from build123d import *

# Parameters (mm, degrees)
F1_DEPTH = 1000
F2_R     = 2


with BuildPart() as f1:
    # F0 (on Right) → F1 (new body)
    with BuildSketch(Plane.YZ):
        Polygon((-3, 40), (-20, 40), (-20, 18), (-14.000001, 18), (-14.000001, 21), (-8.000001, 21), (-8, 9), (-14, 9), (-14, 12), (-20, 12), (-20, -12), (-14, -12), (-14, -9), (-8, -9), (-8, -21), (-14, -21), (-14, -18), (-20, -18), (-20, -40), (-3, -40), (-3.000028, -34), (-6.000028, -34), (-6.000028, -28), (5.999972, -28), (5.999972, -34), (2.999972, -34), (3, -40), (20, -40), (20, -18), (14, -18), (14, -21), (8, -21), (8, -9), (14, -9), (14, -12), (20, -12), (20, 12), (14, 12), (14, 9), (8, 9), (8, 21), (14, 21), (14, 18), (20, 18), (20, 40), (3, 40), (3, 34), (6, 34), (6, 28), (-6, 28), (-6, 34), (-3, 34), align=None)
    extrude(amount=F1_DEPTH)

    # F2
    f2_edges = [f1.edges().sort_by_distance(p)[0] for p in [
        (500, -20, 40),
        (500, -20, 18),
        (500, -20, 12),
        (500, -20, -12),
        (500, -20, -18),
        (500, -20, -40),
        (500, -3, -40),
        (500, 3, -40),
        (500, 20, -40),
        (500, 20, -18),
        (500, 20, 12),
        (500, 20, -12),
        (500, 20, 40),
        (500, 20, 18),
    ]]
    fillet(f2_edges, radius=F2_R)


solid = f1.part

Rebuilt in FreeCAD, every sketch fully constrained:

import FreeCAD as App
import Part
import Sketcher


def edges_at(feature, points):
    """Names of the edges that pass closest to the given points."""
    edges = feature.Shape.Edges
    near = lambda p: min(range(len(edges)), key=lambda i: edges[i].distToShape(Part.Vertex(*p))[0])
    return sorted({f"Edge{near(p) + 1}" for p in points})


def add_polygon(sketch, points):
    """Adds a closed chain of lines whose ends are joined by coincident constraints."""
    first, n = sketch.GeometryCount, len(points)
    for a, b in zip(points, points[1:] + points[:1]):
        sketch.addGeometry(Part.LineSegment(App.Vector(*a, 0), App.Vector(*b, 0)), False)
    for i in range(n):
        sketch.addConstraint(Sketcher.Constraint("Coincident", first + i, 2, first + (i + 1) % n, 1))

doc = App.newDocument("Part")
body = doc.addObject("PartDesign::Body", "Body")

# Sketch on YZ plane
sketch1 = body.newObject("Sketcher::SketchObject", "Sketch")
sketch1.AttachmentSupport = (doc.getObject("YZ_Plane"), [""])
sketch1.MapMode = "FlatFace"
add_polygon(sketch1, [(-3, 40), (-20, 40), (-20, 18), (-14.000001, 18), (-14.000001, 21), (-8.000001, 21), (-8, 9), (-14, 9), (-14, 12), (-20, 12), (-20, -12), (-14, -12), (-14, -9), (-8, -9), (-8, -21), (-14, -21), (-14, -18), (-20, -18), (-20, -40), (-3, -40), (-3.000028, -34), (-6.000028, -34), (-6.000028, -28), (5.999972, -28), (5.999972, -34), (2.999972, -34), (3, -40), (20, -40), (20, -18), (14, -18), (14, -21), (8, -21), (8, -9), (14, -9), (14, -12), (20, -12), (20, 12), (14, 12), (14, 9), (8, 9), (8, 21), (14, 21), (14, 18), (20, 18), (20, 40), (3, 40), (3, 34), (6, 34), (6, 28), (-6, 28), (-6, 34), (-3, 34)])  # lines 0-51
sketch1.addConstraint([
    Sketcher.Constraint("Horizontal", 0),
    Sketcher.Constraint("Vertical", 1),
    Sketcher.Constraint("Horizontal", 2),
    Sketcher.Constraint("Vertical", 3),
    Sketcher.Constraint("Horizontal", 4),
    Sketcher.Constraint("Vertical", 5),
    Sketcher.Constraint("Horizontal", 6),
    Sketcher.Constraint("Vertical", 7),
    Sketcher.Constraint("Horizontal", 8),
    Sketcher.Constraint("Vertical", 9),
    Sketcher.Constraint("Horizontal", 10),
    Sketcher.Constraint("Vertical", 11),
    Sketcher.Constraint("Horizontal", 12),
    Sketcher.Constraint("Vertical", 13),
    Sketcher.Constraint("Horizontal", 14),
    Sketcher.Constraint("Vertical", 15),
    Sketcher.Constraint("Horizontal", 16),
    Sketcher.Constraint("Vertical", 17),
    Sketcher.Constraint("Horizontal", 18),
    Sketcher.Constraint("Horizontal", 20),
    Sketcher.Constraint("Vertical", 21),
    Sketcher.Constraint("Horizontal", 22),
    Sketcher.Constraint("Vertical", 23),
    Sketcher.Constraint("Horizontal", 24),
    Sketcher.Constraint("Horizontal", 26),
    Sketcher.Constraint("Vertical", 27),
    Sketcher.Constraint("Horizontal", 28),
    Sketcher.Constraint("Vertical", 29),
    Sketcher.Constraint("Horizontal", 30),
    Sketcher.Constraint("Vertical", 31),
    Sketcher.Constraint("Horizontal", 32),
    Sketcher.Constraint("Vertical", 33),
    Sketcher.Constraint("Horizontal", 34),
    Sketcher.Constraint("Vertical", 35),
    Sketcher.Constraint("Horizontal", 36),
    Sketcher.Constraint("Vertical", 37),
    Sketcher.Constraint("Horizontal", 38),
    Sketcher.Constraint("Vertical", 39),
    Sketcher.Constraint("Horizontal", 40),
    Sketcher.Constraint("Vertical", 41),
    Sketcher.Constraint("Horizontal", 42),
    Sketcher.Constraint("Vertical", 43),
    Sketcher.Constraint("Horizontal", 44),
    Sketcher.Constraint("Vertical", 45),
    Sketcher.Constraint("Horizontal", 46),
    Sketcher.Constraint("Vertical", 47),
    Sketcher.Constraint("Horizontal", 48),
    Sketcher.Constraint("Vertical", 49),
    Sketcher.Constraint("Horizontal", 50),
    Sketcher.Constraint("Vertical", 51),
    Sketcher.Constraint("Symmetric", 0, 2, 26, 2, -1, 1),
    Sketcher.Constraint("Symmetric", 2, 2, 28, 2, -1, 1),
    Sketcher.Constraint("Symmetric", 4, 2, 30, 2, -1, 1),
    Sketcher.Constraint("Symmetric", 6, 2, 32, 2, -1, 1),
    Sketcher.Constraint("Symmetric", 8, 2, 34, 2, -1, 1),
    Sketcher.Constraint("Symmetric", 10, 2, 36, 2, -1, 1),
    Sketcher.Constraint("Symmetric", 12, 2, 38, 2, -1, 1),
    Sketcher.Constraint("Symmetric", 14, 2, 40, 2, -1, 1),
    Sketcher.Constraint("Symmetric", 16, 2, 42, 2, -1, 1),
    Sketcher.Constraint("Symmetric", 18, 2, 44, 2, -1, 1),
    Sketcher.Constraint("Symmetric", 18, 2, 25, 2, -2),
    Sketcher.Constraint("Symmetric", 16, 2, 27, 2, -2),
    Sketcher.Constraint("Symmetric", 14, 2, 29, 2, -2),
    Sketcher.Constraint("Symmetric", 12, 2, 31, 2, -2),
    Sketcher.Constraint("Symmetric", 10, 2, 33, 2, -2),
    Sketcher.Constraint("Symmetric", 46, 2, 49, 2, -2),
    Sketcher.Constraint("Parallel", 19, 25),
    Sketcher.Constraint("Horizontal", 20, 2, 23, 2),
    Sketcher.Constraint("Vertical", 3, 2, 6, 2),
    Sketcher.Constraint("Vertical", 1, 2, 8, 2),
    Sketcher.Constraint("Vertical", 18, 2, 50, 2),
    Sketcher.Constraint("Equal", 2, 4),
    Sketcher.Constraint("Equal", 20, 24),
    Sketcher.Constraint("Equal", 24, 46),
    Sketcher.Constraint("Equal", 50, 3),
    Sketcher.Constraint("Equal", 48, 5),
    Sketcher.Constraint("Equal", 3, 7),
    Sketcher.Constraint("Equal", 42, 21),
    Sketcher.Constraint("Equal", 23, 45),
    Sketcher.Constraint("Equal", 45, 47),
    Sketcher.Constraint("DistanceX", 0, 2, 0, 1, 17.0),
    Sketcher.Constraint("DistanceX", 2, 1, 2, 2, 5.999999),
    Sketcher.Constraint("DistanceX", 20, 2, 20, 1, 3.0),
    Sketcher.Constraint("DistanceX", 22, 1, 22, 2, 12.0),
    Sketcher.Constraint("DistanceY", 1, 2, 1, 1, 22.0),
    Sketcher.Constraint("DistanceY", 9, 2, 9, 1, 24.0),
    Sketcher.Constraint("Distance", 19, 6.0),
    Sketcher.Constraint("DistanceX", 20, 2, -1, 1, 6.000028),
])
pad1 = body.newObject("PartDesign::Pad", "Pad")
pad1.Profile = sketch1
pad1.Length = 1000
doc.recompute()

fillet = body.newObject("PartDesign::Fillet", "Fillet")
fillet.Base = (pad1, edges_at(pad1, [
    (500, -20, 40),
    (500, -20, 18),
    (500, -20, 12),
    (500, -20, -12),
    (500, -20, -18),
    (500, -20, -40),
    (500, -3, -40),
    (500, 3, -40),
    (500, 20, -40),
    (500, 20, -18),
    (500, 20, 12),
    (500, 20, -12),
    (500, 20, 40),
    (500, 20, 18),
]))
fillet.Radius = 2

doc.recompute()
